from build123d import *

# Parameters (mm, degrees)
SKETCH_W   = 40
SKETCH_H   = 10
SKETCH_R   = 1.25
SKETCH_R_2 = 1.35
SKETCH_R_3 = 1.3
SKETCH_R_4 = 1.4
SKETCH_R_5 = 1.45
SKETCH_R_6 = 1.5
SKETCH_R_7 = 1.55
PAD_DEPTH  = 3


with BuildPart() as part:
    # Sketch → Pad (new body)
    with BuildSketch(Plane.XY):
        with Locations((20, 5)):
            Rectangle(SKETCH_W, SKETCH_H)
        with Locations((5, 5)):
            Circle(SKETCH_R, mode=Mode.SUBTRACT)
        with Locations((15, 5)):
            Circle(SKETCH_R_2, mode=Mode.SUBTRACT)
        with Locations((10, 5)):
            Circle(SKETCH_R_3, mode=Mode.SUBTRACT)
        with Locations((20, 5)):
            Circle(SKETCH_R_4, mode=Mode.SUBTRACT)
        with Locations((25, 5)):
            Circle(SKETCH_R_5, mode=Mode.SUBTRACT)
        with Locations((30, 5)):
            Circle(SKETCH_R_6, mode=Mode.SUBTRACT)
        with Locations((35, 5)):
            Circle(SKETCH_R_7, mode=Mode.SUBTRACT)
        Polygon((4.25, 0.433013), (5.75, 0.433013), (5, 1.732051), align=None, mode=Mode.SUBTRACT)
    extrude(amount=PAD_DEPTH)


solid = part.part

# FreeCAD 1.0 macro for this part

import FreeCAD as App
import Part
import Sketcher
Q = App.Units.Quantity

doc = App.newDocument("Part")
body = doc.addObject("PartDesign::Body", "Body")

sketch1 = body.newObject("Sketcher::SketchObject", "Sketch")
sketch1.AttachmentSupport = (doc.getObject("XY_Plane"), [""])
sketch1.MapMode = "FlatFace"
sketch1.addGeometry(Part.LineSegment(App.Vector(0, 10, 0), App.Vector(0, 0, 0)), False)
sketch1.addGeometry(Part.LineSegment(App.Vector(0, 0, 0), App.Vector(40, 0, 0)), False)
sketch1.addGeometry(Part.LineSegment(App.Vector(40, 0, 0), App.Vector(40, 10, 0)), False)
sketch1.addGeometry(Part.LineSegment(App.Vector(40, 10, 0), App.Vector(0, 10, 0)), False)
sketch1.addGeometry(Part.LineSegment(App.Vector(5.75, 0.433013, 0), App.Vector(4.25, 0.433013, 0)), False)
sketch1.addGeometry(Part.LineSegment(App.Vector(4.25, 0.433013, 0), App.Vector(5, 1.732051, 0)), False)
sketch1.addGeometry(Part.LineSegment(App.Vector(5, 1.732051, 0), App.Vector(5.75, 0.433013, 0)), False)
sketch1.addGeometry(Part.Circle(App.Vector(5, 5, 0), App.Vector(0, 0, 1), 1.25), False)
sketch1.addGeometry(Part.Circle(App.Vector(10, 5, 0), App.Vector(0, 0, 1), 1.3), False)
sketch1.addGeometry(Part.Circle(App.Vector(15, 5, 0), App.Vector(0, 0, 1), 1.35), False)
sketch1.addGeometry(Part.Circle(App.Vector(20, 5, 0), App.Vector(0, 0, 1), 1.4), False)
sketch1.addGeometry(Part.Circle(App.Vector(25, 5, 0), App.Vector(0, 0, 1), 1.45), False)
sketch1.addGeometry(Part.Circle(App.Vector(30, 5, 0), App.Vector(0, 0, 1), 1.5), False)
sketch1.addGeometry(Part.Circle(App.Vector(35, 5, 0), App.Vector(0, 0, 1), 1.55), False)
sketch1.addConstraint(Sketcher.Constraint("Coincident", 0, 2, 1, 1))
sketch1.addConstraint(Sketcher.Constraint("Coincident", 1, 2, 2, 1))
sketch1.addConstraint(Sketcher.Constraint("Coincident", 2, 2, 3, 1))
sketch1.addConstraint(Sketcher.Constraint("Coincident", 3, 2, 0, 1))
sketch1.addConstraint(Sketcher.Constraint("Coincident", 4, 2, 5, 1))
sketch1.addConstraint(Sketcher.Constraint("Coincident", 5, 2, 6, 1))
sketch1.addConstraint(Sketcher.Constraint("Coincident", 6, 2, 4, 1))
sketch1.addConstraint(Sketcher.Constraint("Vertical", 0))
sketch1.addConstraint(Sketcher.Constraint("Horizontal", 1))
sketch1.addConstraint(Sketcher.Constraint("Vertical", 2))
sketch1.addConstraint(Sketcher.Constraint("Horizontal", 3))
sketch1.addConstraint(Sketcher.Constraint("Horizontal", 4))
sketch1.addConstraint(Sketcher.Constraint("Coincident", 0, 2, -1, 1))
sketch1.addConstraint(Sketcher.Constraint("Horizontal", 7, 3, 8, 3))
sketch1.addConstraint(Sketcher.Constraint("Horizontal", 8, 3, 9, 3))
sketch1.addConstraint(Sketcher.Constraint("Horizontal", 9, 3, 10, 3))
sketch1.addConstraint(Sketcher.Constraint("Horizontal", 10, 3, 11, 3))
sketch1.addConstraint(Sketcher.Constraint("Horizontal", 11, 3, 12, 3))
sketch1.addConstraint(Sketcher.Constraint("Horizontal", 12, 3, 13, 3))
sketch1.addConstraint(Sketcher.Constraint("Vertical", 7, 3, 5, 2))
sketch1.addConstraint(Sketcher.Constraint("Equal", 5, 6))
sketch1.addConstraint(Sketcher.Constraint("Diameter", 12, Q("3 mm")))
sketch1.addConstraint(Sketcher.Constraint("Diameter", 7, Q("2.5 mm")))
sketch1.addConstraint(Sketcher.Constraint("Diameter", 8, Q("2.6 mm")))
sketch1.addConstraint(Sketcher.Constraint("Diameter", 9, Q("2.7 mm")))
sketch1.addConstraint(Sketcher.Constraint("Diameter", 10, Q("2.8 mm")))
sketch1.addConstraint(Sketcher.Constraint("Diameter", 11, Q("2.9 mm")))
sketch1.addConstraint(Sketcher.Constraint("Diameter", 13, Q("3.1 mm")))
sketch1.addConstraint(Sketcher.Constraint("DistanceX", 1, 1, 1, 2, Q("40 mm")))
sketch1.addConstraint(Sketcher.Constraint("DistanceY", 0, 2, 0, 1, Q("10 mm")))
sketch1.addConstraint(Sketcher.Constraint("Angle", 5, Q("59.999998 deg")))
sketch1.addConstraint(Sketcher.Constraint("DistanceX", 4, 2, 4, 1, Q("1.5 mm")))
sketch1.addConstraint(Sketcher.Constraint("DistanceX", -1, 1, 7, 3, Q("5 mm")))
sketch1.addConstraint(Sketcher.Constraint("DistanceY", -1, 1, 7, 3, Q("5 mm")))
sketch1.addConstraint(Sketcher.Constraint("DistanceX", -1, 1, 8, 3, Q("10 mm")))
sketch1.addConstraint(Sketcher.Constraint("DistanceX", -1, 1, 9, 3, Q("15 mm")))
sketch1.addConstraint(Sketcher.Constraint("DistanceX", -1, 1, 10, 3, Q("20 mm")))
sketch1.addConstraint(Sketcher.Constraint("DistanceX", -1, 1, 11, 3, Q("25 mm")))
sketch1.addConstraint(Sketcher.Constraint("DistanceX", -1, 1, 12, 3, Q("30 mm")))
sketch1.addConstraint(Sketcher.Constraint("DistanceX", -1, 1, 13, 3, Q("35 mm")))
sketch1.addConstraint(Sketcher.Constraint("DistanceY", -1, 1, 5, 2, Q("1.732051 mm")))
pad1 = body.newObject("PartDesign::Pad", "Pad")
pad1.Profile = sketch1
pad1.Length = 3

doc.recompute()
